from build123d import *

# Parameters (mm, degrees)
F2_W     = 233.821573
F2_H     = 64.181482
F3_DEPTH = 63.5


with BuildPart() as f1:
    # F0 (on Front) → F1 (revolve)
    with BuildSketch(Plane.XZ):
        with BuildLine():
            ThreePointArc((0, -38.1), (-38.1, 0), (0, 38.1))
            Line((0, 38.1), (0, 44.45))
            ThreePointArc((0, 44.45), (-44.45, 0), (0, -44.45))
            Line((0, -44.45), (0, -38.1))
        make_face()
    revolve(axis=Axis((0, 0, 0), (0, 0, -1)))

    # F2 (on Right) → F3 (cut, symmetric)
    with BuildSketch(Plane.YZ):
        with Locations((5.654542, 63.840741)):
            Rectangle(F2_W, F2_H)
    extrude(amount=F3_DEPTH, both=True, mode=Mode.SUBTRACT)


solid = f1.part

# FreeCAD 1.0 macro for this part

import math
import FreeCAD as App
import Part
import Sketcher

V = App.Vector
Q = App.Units.Quantity


def add_polygon(sketch, points):
    """Adds a closed chain of lines whose ends are joined by coincident constraints."""
    first, n = sketch.GeometryCount, len(points)
    for a, b in zip(points, points[1:] + points[:1]):
        sketch.addGeometry(Part.LineSegment(App.Vector(*a, 0), App.Vector(*b, 0)), False)
    for i in range(n):
        sketch.addConstraint(Sketcher.Constraint("Coincident", first + i, 2, first + (i + 1) % n, 1))

doc = App.newDocument("Part")
body = doc.addObject("PartDesign::Body", "Body")

# Sketch on XZ plane
sketch1 = body.newObject("Sketcher::SketchObject", "Sketch")
sketch1.AttachmentSupport = (doc.getObject("XZ_Plane"), [""])
sketch1.MapMode = "FlatFace"
sketch1.addGeometry(Part.ArcOfCircle(Part.Circle(V(0, 0, 0), V(0, 0, 1), 38), math.radians(90), math.radians(270)), False)
sketch1.addGeometry(Part.LineSegment(V(0, 38, 0), V(0, 44, 0)), False)
sketch1.addGeometry(Part.ArcOfCircle(Part.Circle(V(0, 0, 0), V(0, 0, 1), 44), math.radians(90), math.radians(270)), False)
sketch1.addGeometry(Part.LineSegment(V(0, -44, 0), V(0, -38, 0)), False)
sketch1.addConstraint(Sketcher.Constraint("Coincident", 0, 1, 1, 1))
sketch1.addConstraint(Sketcher.Constraint("Coincident", 1, 2, 2, 1))
sketch1.addConstraint(Sketcher.Constraint("Coincident", 2, 2, 3, 1))
sketch1.addConstraint(Sketcher.Constraint("Coincident", 3, 2, 0, 2))
sketch1.addConstraint(Sketcher.Constraint("Vertical", 1))
sketch1.addConstraint(Sketcher.Constraint("Vertical", 3))
sketch1.addConstraint(Sketcher.Constraint("Coincident", 0, 3, -1, 1))
sketch1.addConstraint(Sketcher.Constraint("Coincident", 2, 3, -1, 1))
sketch1.addConstraint(Sketcher.Constraint("PointOnObject", 0, 1, -2))
sketch1.addConstraint(Sketcher.Constraint("PointOnObject", 2, 2, -2))
sketch1.addConstraint(Sketcher.Constraint("Radius", 0, Q("1.5 in")))
sketch1.addConstraint(Sketcher.Constraint("Radius", 2, Q("1.75 in")))
revolution = body.newObject("PartDesign::Revolution", "Revolution")
revolution.Profile = sketch1
revolution.ReferenceAxis = (sketch1, ["V_Axis"])
revolution.Angle = 360

# Sketch on YZ plane
sketch2 = body.newObject("Sketcher::SketchObject", "Sketch001")
sketch2.AttachmentSupport = (doc.getObject("YZ_Plane"), [""])
sketch2.MapMode = "FlatFace"
add_polygon(sketch2, [(-111, 96), (-111, 32), (123, 32), (123, 96)])  # lines 0-3
sketch2.addConstraint(Sketcher.Constraint("Vertical", 0))
sketch2.addConstraint(Sketcher.Constraint("Horizontal", 1))
sketch2.addConstraint(Sketcher.Constraint("Vertical", 2))
sketch2.addConstraint(Sketcher.Constraint("Horizontal", 3))
sketch2.addConstraint(Sketcher.Constraint("DistanceY", -1, 1, 0, 2, Q("1.25 in")))
sketch2.addConstraint(Sketcher.Constraint("DistanceX", 1, 1, 1, 2, 233.821573))
sketch2.addConstraint(Sketcher.Constraint("DistanceY", 0, 2, 0, 1, 64.181482))
sketch2.addConstraint(Sketcher.Constraint("DistanceX", -1, 1, 1, 2, 122.565329))
pocket1 = body.newObject("PartDesign::Pocket", "Pocket")
pocket1.Profile = sketch2
pocket1.Length = Q("5 in")
pocket1.Midplane = True

doc.recompute()
